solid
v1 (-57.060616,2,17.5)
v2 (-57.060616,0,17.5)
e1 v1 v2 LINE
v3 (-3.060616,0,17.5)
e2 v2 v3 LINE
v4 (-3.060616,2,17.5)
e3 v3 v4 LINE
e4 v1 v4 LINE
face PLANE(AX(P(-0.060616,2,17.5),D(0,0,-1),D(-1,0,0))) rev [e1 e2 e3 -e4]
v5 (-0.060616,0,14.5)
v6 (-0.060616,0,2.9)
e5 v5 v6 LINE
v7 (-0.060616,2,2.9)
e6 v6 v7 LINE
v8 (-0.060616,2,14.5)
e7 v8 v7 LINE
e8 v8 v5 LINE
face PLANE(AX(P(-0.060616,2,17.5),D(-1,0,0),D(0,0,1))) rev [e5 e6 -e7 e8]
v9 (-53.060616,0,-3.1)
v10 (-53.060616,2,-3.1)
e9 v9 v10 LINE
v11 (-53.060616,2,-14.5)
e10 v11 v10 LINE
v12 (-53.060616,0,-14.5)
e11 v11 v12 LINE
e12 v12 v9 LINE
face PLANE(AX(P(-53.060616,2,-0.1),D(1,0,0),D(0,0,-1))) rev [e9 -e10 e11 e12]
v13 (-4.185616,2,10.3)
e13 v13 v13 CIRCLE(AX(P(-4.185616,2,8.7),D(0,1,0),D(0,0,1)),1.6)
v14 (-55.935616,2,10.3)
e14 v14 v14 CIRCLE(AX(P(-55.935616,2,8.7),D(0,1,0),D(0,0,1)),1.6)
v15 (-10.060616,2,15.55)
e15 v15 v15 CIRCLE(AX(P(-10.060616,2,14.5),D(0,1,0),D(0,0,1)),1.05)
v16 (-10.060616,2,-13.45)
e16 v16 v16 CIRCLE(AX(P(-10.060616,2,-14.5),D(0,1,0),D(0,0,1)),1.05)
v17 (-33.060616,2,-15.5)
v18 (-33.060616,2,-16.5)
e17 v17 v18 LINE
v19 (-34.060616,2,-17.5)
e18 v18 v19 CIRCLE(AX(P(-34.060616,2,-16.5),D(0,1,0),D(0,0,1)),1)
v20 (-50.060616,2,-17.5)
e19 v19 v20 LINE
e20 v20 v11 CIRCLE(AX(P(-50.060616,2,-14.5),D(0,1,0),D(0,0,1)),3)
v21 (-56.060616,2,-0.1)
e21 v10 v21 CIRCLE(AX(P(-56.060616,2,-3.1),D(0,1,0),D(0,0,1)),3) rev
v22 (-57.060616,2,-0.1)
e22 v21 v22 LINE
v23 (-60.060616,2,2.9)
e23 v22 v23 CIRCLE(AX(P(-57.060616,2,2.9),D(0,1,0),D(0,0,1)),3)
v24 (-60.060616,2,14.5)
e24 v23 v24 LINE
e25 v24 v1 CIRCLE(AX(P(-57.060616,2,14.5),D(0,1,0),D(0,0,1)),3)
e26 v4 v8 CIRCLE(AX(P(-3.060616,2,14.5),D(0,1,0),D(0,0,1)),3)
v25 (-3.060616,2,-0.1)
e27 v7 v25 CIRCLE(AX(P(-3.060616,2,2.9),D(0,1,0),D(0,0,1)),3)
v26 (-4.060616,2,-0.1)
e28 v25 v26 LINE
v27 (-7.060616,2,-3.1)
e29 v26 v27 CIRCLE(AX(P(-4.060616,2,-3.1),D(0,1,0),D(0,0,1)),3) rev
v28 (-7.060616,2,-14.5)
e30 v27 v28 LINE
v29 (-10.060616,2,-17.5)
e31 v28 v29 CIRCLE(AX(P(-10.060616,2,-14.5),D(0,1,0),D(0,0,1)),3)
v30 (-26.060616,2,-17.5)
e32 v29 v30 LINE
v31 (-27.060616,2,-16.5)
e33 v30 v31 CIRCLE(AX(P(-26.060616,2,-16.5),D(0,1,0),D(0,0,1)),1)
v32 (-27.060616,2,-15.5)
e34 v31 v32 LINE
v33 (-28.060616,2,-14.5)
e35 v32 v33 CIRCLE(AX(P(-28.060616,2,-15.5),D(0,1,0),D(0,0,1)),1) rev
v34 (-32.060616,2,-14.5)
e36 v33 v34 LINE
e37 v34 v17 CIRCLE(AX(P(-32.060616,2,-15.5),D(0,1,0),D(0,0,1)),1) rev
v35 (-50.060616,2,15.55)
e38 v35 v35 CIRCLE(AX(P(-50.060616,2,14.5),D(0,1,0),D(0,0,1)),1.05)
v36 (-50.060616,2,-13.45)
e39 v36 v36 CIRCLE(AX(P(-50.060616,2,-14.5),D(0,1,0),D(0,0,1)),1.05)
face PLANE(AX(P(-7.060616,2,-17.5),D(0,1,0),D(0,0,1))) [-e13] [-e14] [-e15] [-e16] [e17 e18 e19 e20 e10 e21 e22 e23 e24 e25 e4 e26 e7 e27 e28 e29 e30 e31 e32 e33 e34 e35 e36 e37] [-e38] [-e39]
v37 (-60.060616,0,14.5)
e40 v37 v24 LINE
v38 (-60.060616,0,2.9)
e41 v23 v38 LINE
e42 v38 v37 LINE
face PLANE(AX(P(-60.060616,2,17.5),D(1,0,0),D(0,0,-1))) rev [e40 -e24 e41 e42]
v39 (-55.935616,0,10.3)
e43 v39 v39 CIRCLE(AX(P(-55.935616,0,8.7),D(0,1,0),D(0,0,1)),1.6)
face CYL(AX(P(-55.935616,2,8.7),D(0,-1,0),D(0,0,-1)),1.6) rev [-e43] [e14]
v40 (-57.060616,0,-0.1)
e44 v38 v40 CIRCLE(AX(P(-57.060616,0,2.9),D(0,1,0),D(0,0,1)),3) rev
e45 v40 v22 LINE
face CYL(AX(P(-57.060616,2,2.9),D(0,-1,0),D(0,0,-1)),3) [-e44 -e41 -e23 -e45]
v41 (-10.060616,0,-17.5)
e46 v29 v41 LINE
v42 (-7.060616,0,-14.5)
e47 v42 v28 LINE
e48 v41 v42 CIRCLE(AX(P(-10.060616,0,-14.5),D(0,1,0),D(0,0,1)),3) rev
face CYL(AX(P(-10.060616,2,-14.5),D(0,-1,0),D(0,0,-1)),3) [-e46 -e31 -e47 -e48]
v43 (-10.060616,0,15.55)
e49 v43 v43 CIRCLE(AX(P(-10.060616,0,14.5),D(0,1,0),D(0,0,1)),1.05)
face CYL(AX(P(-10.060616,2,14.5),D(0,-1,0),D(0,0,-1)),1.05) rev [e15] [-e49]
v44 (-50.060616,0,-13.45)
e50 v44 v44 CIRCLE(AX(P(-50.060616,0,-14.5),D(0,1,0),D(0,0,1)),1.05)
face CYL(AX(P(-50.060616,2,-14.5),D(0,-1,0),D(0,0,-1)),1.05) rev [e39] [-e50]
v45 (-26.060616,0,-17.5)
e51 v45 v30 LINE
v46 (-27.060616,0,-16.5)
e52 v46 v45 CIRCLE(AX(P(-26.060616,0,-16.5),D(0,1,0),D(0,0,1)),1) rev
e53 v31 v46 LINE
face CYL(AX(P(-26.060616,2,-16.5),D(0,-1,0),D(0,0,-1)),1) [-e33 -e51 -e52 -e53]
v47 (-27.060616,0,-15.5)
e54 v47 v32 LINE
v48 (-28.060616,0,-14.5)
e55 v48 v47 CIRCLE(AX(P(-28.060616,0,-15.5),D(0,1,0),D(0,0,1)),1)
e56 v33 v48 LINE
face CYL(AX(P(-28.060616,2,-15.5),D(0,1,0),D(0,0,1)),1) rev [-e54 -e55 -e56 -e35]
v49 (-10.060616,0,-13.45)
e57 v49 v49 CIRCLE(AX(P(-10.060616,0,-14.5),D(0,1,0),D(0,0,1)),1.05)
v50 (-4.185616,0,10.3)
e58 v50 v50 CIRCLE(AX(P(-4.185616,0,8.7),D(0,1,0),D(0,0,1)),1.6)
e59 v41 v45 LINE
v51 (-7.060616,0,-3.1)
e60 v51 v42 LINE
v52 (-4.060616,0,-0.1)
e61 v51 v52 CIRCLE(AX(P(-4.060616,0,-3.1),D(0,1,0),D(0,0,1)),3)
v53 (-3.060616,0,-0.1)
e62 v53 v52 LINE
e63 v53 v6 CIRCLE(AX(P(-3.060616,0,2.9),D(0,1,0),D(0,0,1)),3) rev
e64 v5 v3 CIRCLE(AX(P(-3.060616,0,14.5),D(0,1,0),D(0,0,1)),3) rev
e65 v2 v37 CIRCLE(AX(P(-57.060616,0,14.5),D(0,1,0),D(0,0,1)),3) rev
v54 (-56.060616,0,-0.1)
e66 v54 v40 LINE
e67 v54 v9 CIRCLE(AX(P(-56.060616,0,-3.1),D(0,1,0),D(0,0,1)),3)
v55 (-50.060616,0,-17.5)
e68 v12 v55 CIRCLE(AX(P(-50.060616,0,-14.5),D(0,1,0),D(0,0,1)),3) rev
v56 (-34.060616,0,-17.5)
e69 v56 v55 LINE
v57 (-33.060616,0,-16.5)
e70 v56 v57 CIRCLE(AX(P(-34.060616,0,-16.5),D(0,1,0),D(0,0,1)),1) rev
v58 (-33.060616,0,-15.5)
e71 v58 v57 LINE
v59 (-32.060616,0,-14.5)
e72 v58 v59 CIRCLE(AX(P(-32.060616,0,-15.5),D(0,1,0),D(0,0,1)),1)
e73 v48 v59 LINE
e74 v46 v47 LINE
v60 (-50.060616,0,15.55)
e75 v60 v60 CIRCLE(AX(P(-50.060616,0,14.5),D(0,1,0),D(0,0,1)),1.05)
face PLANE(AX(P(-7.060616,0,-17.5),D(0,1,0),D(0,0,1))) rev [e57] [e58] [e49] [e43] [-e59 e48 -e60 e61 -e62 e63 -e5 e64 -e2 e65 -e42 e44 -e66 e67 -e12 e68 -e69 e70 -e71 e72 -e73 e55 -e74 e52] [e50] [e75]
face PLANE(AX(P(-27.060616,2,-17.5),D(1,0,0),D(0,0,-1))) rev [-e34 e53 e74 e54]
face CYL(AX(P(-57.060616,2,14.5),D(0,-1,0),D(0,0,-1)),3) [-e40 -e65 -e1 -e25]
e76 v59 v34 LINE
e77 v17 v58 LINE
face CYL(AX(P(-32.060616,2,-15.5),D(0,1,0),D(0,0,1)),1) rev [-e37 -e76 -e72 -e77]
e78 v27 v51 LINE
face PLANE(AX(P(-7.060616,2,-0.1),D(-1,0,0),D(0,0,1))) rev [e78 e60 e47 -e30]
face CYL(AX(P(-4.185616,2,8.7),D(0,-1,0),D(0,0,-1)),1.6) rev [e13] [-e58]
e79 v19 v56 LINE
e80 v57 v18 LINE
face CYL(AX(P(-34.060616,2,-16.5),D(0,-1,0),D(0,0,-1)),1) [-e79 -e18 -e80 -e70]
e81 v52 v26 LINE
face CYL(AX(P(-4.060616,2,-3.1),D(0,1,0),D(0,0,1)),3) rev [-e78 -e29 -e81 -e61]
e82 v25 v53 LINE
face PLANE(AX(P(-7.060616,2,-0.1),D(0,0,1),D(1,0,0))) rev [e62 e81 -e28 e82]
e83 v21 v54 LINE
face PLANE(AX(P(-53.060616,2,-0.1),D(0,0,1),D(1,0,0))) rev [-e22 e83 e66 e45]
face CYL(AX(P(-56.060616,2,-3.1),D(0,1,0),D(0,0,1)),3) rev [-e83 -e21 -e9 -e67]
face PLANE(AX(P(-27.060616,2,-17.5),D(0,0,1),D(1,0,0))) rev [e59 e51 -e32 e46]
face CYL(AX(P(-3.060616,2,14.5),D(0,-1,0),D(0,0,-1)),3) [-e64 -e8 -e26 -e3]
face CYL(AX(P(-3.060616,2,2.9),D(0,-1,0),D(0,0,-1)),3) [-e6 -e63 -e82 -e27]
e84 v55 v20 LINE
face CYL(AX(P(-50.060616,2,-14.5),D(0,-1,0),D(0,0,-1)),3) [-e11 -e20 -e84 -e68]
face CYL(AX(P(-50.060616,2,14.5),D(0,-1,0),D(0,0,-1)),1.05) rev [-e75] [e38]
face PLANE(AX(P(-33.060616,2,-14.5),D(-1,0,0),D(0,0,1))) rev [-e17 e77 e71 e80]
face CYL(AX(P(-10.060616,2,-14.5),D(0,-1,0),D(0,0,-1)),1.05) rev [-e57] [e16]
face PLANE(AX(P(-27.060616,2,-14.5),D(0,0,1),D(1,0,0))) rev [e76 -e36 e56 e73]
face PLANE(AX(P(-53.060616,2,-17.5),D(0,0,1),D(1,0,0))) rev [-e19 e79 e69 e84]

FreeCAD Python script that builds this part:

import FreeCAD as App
import Part
import Sketcher

V = App.Vector
Q = App.Units.Quantity


def edges_at(feature, points):
    """Names of the edges that pass closest to the given points."""
    edges = feature.Shape.Edges
    near = lambda p: min(range(len(edges)), key=lambda i: edges[i].distToShape(Part.Vertex(*p))[0])
    return sorted({f"Edge{near(p) + 1}" for p in points})


def add_polygon(sketch, points):
    """Adds a closed chain of lines whose ends are joined by coincident constraints."""
    first, n = sketch.GeometryCount, len(points)
    for a, b in zip(points, points[1:] + points[:1]):
        sketch.addGeometry(Part.LineSegment(App.Vector(*a, 0), App.Vector(*b, 0)), False)
    for i in range(n):
        sketch.addConstraint(Sketcher.Constraint("Coincident", first + i, 2, first + (i + 1) % n, 1))

doc = App.newDocument("Part")
params = doc.addObject("Spreadsheet::Sheet", "Params")
for row, (alias, value) in enumerate([
    ("sketch1_diameter", "2.1 mm"),
    ("sketch1_diameter2", "3.2 mm"),
    ("sketch1_width", "6 mm"),
    ("sketch1_width2", "20 mm"),
    ("sketch1_width3", "7 mm"),
    ("pad1_length", "2 mm"),
    ("fillet_radius", "3 mm"),
    ("fillet2_radius", "1 mm"),
], start=1):
    params.set(f"A{row}", alias)
    params.set(f"B{row}", "=" + value)
    params.setAlias(f"B{row}", alias)

body = doc.addObject("PartDesign::Body", "Body")

# Sketch on XZ plane
sketch1 = body.newObject("Sketcher::SketchObject", "Sketch")
sketch1.AttachmentSupport = (doc.getObject("XZ_Plane"), [""])
sketch1.MapMode = "FlatFace"
add_polygon(sketch1, [(-27.1, -17.5), (-27.1, -14.5), (-33.1, -14.5), (-33.1, -17.5), (-53.1, -17.5), (-53.1, -0.1), (-60.1, -0.1), (-60.1, 17.5), (-0.1, 17.5), (-0.1, -0.1), (-7.1, -0.1), (-7.1, -17.5)])  # lines 0-11
sketch1.addGeometry(Part.Circle(V(-50.1, 14.5, 0), V(0, 0, 1), 1.1), False)  # 12
sketch1.addGeometry(Part.Circle(V(-55.9, 8.7, 0), V(0, 0, 1), 1.6), False)  # 13
sketch1.addGeometry(Part.Circle(V(-10.1, 14.5, 0), V(0, 0, 1), 1.1), False)  # 14
sketch1.addGeometry(Part.Circle(V(-4.2, 8.7, 0), V(0, 0, 1), 1.6), False)  # 15
sketch1.addGeometry(Part.Circle(V(-50.1, -14.5, 0), V(0, 0, 1), 1.1), False)  # 16
sketch1.addGeometry(Part.Circle(V(-10.1, -14.5, 0), V(0, 0, 1), 1.1), False)  # 17
sketch1.addConstraint([
    Sketcher.Constraint("Vertical", 0),
    Sketcher.Constraint("Horizontal", 1),
    Sketcher.Constraint("Vertical", 2),
    Sketcher.Constraint("Horizontal", 3),
    Sketcher.Constraint("Vertical", 4),
    Sketcher.Constraint("Horizontal", 5),
    Sketcher.Constraint("Vertical", 6),
    Sketcher.Constraint("Horizontal", 7),
    Sketcher.Constraint("Vertical", 8),
    Sketcher.Constraint("Horizontal", 9),
    Sketcher.Constraint("Vertical", 10),
    Sketcher.Constraint("Horizontal", 11),
    Sketcher.Constraint("Equal", 12, 14),
    Sketcher.Constraint("Equal", 13, 15),
    Sketcher.Constraint("Equal", 14, 16),
    Sketcher.Constraint("Equal", 16, 17),
    Sketcher.Constraint("Symmetric", 12, 3, 16, 3, -1),
    Sketcher.Constraint("Symmetric", 14, 3, 17, 3, -1),
    Sketcher.Constraint("Horizontal", 12, 3, 14, 3),
    Sketcher.Constraint("Horizontal", 13, 3, 15, 3),
    Sketcher.Constraint("Horizontal", 17, 3, 0, 2),
    Sketcher.Constraint("Horizontal", 5, 2, 8, 2),
    Sketcher.Constraint("Horizontal", 3, 2, 10, 2),
    Sketcher.Constraint("Equal", 5, 9),
    Sketcher.Constraint("Equal", 3, 11),
    Sketcher.Constraint("Diameter", 12, Q("2.1 mm")),
    Sketcher.Constraint("Diameter", 13, Q("3.2 mm")),
    Sketcher.Constraint("DistanceX", 1, 2, 1, 1, Q("6 mm")),
    Sketcher.Constraint("DistanceX", 3, 2, 3, 1, Q("20 mm")),
    Sketcher.Constraint("DistanceX", 5, 2, 5, 1, Q("7 mm")),
    Sketcher.Constraint("DistanceY", 0, 1, 0, 2, Q("3 mm")),
    Sketcher.Constraint("DistanceY", 4, 1, 4, 2, Q("17.4 mm")),
    Sketcher.Constraint("DistanceY", 6, 1, 6, 2, Q("17.6 mm")),
    Sketcher.Constraint("DistanceX", 12, 3, 14, 3, Q("40 mm")),
    Sketcher.Constraint("DistanceY", 16, 3, 12, 3, Q("29 mm")),
    Sketcher.Constraint("DistanceX", 0, 2, 17, 3, Q("17 mm")),
    Sketcher.Constraint("DistanceY", -1, 1, 13, 3, Q("8.7 mm")),
    Sketcher.Constraint("DistanceX", 13, 3, 15, 3, Q("51.75 mm")),
    Sketcher.Constraint("DistanceX", 13, 3, 12, 3, Q("5.875 mm")),
    Sketcher.Constraint("DistanceX", 12, 3, -1, 1, Q("50.060616 mm")),
])
sketch1.setExpression("Constraints[37]", "Params.sketch1_diameter")
sketch1.setExpression("Constraints[38]", "Params.sketch1_diameter2")
sketch1.setExpression("Constraints[39]", "Params.sketch1_width")
sketch1.setExpression("Constraints[40]", "Params.sketch1_width2")
sketch1.setExpression("Constraints[41]", "Params.sketch1_width3")
pad1 = body.newObject("PartDesign::Pad", "Pad")
pad1.Profile = sketch1
pad1.setExpression("Length", "Params.pad1_length")
pad1.Reversed = True
doc.recompute()

fillet = body.newObject("PartDesign::Fillet", "Fillet")
fillet.Base = (pad1, edges_at(pad1, [
    (-7.061, 1, -17.5),
    (-7.061, 1, -0.1),
    (-0.061, 1, -0.1),
    (-0.061, 1, 17.5),
    (-60.061, 1, 17.5),
    (-60.061, 1, -0.1),
    (-53.061, 1, -0.1),
    (-53.061, 1, -17.5),
]))
fillet.setExpression("Radius", "Params.fillet_radius")
doc.recompute()

fillet2 = body.newObject("PartDesign::Fillet", "Fillet001")
fillet2.Base = (fillet, edges_at(fillet, [
    (-33.061, 1, -17.5),
    (-33.061, 1, -14.5),
    (-27.061, 1, -14.5),
    (-27.061, 1, -17.5),
]))
fillet2.setExpression("Radius", "Params.fillet2_radius")

doc.recompute()
